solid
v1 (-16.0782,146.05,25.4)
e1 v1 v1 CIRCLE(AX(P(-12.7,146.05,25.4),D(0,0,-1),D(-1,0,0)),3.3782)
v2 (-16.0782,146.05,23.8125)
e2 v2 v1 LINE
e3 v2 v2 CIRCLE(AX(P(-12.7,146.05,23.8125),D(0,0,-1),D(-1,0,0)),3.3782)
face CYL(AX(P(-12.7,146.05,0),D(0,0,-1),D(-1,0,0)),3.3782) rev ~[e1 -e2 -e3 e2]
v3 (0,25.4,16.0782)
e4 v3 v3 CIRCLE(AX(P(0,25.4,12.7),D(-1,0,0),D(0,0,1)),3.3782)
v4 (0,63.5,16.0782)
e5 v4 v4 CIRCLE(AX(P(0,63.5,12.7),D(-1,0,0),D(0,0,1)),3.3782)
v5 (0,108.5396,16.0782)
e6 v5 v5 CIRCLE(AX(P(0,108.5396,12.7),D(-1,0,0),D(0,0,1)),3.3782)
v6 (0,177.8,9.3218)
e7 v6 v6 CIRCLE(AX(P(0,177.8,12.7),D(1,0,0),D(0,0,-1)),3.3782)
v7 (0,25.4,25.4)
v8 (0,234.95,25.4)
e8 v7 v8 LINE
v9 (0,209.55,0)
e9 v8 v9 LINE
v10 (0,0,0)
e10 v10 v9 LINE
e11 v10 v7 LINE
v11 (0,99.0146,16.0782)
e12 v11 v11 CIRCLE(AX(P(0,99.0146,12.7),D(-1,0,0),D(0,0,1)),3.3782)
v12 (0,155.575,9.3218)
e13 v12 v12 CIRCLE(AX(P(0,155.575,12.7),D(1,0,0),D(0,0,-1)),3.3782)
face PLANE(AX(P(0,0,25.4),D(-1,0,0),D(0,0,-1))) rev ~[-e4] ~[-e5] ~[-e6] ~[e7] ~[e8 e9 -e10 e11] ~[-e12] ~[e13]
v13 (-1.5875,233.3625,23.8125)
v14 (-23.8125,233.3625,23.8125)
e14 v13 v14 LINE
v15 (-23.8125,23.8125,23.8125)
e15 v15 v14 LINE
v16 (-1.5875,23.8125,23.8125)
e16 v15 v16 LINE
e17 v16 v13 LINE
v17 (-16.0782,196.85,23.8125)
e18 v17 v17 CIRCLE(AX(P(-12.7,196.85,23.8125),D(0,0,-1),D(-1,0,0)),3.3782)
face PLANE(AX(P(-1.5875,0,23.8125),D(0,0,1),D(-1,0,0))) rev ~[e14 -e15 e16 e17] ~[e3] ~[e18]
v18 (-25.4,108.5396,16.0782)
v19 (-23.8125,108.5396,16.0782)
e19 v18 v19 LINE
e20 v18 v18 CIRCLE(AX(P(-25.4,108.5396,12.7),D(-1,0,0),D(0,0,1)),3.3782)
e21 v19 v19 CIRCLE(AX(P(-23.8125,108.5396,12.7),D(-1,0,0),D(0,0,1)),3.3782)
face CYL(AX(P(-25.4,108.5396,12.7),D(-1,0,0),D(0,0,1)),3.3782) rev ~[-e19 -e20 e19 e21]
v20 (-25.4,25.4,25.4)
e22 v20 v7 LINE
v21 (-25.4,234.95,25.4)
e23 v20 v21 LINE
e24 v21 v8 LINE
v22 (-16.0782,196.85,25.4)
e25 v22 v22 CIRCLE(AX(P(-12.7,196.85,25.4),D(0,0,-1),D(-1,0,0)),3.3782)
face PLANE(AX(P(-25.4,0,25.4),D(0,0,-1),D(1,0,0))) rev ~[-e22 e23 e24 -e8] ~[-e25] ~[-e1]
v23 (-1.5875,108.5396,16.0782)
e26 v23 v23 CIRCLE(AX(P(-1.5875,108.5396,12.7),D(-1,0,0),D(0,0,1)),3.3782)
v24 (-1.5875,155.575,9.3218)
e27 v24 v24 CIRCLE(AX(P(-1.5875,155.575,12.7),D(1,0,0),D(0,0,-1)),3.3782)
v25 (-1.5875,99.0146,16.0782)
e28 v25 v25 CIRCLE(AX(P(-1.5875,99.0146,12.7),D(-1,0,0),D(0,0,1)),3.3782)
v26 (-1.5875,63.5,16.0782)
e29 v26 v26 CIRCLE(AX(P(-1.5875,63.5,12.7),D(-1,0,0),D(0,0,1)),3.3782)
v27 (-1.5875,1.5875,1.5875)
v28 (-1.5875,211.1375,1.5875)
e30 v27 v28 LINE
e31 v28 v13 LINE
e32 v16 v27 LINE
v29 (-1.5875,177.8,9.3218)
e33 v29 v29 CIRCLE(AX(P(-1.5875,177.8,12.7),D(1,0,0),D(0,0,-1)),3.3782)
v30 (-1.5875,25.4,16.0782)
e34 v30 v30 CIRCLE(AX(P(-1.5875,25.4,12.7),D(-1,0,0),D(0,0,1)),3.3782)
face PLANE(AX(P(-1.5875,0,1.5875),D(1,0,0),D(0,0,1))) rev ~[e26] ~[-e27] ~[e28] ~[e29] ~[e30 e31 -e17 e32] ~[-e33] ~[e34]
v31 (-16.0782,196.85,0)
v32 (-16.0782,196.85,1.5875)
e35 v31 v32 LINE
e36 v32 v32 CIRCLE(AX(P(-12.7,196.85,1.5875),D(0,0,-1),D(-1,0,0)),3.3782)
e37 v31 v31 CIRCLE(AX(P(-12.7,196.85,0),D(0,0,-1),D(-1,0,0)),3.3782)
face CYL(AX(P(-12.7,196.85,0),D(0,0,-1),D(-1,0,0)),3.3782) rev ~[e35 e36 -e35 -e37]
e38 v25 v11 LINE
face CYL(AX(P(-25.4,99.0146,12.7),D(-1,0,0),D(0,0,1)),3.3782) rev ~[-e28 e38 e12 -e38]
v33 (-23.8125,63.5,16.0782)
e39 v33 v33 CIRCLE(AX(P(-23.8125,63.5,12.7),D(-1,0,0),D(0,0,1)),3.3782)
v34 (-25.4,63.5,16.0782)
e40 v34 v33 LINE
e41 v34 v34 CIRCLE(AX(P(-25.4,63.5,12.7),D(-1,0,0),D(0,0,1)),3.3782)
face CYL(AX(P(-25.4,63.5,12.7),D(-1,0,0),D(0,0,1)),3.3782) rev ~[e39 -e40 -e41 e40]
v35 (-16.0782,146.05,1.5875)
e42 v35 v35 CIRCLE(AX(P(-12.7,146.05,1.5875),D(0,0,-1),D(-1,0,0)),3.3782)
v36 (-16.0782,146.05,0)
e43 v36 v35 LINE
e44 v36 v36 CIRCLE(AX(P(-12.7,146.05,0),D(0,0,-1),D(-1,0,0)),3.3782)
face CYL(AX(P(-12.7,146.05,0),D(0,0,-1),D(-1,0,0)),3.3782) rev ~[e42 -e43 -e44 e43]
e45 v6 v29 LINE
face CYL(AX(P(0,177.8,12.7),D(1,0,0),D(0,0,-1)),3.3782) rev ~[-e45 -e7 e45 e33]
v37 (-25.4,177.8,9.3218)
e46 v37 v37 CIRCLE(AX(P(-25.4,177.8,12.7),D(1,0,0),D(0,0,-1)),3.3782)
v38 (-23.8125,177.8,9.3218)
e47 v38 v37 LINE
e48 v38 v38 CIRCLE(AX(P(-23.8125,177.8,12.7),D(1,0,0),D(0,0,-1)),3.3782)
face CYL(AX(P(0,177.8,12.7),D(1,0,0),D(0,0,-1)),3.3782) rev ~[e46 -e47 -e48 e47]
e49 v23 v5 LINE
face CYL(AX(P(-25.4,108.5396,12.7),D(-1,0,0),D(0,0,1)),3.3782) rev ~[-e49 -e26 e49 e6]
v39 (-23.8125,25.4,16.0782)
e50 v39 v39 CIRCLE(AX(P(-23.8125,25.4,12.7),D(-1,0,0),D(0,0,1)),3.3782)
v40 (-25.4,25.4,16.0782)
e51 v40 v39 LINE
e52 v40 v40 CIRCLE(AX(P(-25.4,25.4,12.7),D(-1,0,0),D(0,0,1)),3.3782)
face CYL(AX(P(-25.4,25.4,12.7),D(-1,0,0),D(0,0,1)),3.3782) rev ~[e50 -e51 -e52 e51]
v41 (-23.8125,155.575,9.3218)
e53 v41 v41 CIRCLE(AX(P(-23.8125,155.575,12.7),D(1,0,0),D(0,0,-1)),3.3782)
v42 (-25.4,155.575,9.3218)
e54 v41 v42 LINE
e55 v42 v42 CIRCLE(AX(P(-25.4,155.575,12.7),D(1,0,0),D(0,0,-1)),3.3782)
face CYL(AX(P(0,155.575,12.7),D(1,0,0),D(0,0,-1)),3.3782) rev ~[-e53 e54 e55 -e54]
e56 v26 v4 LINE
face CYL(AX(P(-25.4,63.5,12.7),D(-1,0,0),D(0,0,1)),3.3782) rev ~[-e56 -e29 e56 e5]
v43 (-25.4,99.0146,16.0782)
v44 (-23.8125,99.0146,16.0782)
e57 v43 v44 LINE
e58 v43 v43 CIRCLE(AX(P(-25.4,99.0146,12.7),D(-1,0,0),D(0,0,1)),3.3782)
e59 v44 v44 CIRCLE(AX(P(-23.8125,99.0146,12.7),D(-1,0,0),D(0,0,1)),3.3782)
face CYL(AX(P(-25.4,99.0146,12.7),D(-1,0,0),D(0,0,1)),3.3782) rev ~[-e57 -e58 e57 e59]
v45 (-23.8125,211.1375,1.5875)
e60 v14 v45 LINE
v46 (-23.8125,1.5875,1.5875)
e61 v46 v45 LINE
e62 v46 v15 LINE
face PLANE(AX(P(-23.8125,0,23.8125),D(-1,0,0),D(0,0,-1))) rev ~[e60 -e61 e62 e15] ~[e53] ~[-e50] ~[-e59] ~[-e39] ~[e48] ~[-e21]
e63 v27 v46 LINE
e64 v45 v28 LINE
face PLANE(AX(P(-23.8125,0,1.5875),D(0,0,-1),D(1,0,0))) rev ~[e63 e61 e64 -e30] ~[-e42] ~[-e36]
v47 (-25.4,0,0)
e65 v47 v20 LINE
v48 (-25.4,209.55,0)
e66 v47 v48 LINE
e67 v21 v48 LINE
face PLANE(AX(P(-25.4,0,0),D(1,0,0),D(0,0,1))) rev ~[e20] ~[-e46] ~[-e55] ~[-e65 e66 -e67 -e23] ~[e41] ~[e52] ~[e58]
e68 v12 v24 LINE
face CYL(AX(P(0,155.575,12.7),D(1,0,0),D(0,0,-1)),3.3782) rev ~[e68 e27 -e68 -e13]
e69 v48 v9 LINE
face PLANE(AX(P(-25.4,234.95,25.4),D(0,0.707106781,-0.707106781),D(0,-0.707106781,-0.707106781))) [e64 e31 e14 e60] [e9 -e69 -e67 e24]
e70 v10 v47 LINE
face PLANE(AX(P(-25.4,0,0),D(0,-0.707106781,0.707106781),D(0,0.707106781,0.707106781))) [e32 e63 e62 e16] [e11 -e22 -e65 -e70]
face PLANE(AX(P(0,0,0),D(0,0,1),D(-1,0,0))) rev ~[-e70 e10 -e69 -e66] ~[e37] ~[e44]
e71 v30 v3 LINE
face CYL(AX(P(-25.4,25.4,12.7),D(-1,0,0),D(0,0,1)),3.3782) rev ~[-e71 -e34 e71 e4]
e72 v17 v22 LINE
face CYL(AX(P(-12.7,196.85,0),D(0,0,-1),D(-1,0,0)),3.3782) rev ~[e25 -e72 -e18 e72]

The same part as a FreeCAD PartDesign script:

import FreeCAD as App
import Part
import Sketcher
Q = App.Units.Quantity

doc = App.newDocument("Part")
body = doc.addObject("PartDesign::Body", "Body")

sketch1 = body.newObject("Sketcher::SketchObject", "Sketch")
sketch1.AttachmentSupport = (doc.getObject("XZ_Plane"), [""])
sketch1.MapMode = "FlatFace"
sketch1.addGeometry([
    Part.LineSegment(App.Vector(0, 25, 0), App.Vector(0, 0, 0)),
    Part.LineSegment(App.Vector(0, 0, 0), App.Vector(-25, 0, 0)),
    Part.LineSegment(App.Vector(-25, 0, 0), App.Vector(-25, 25, 0)),
    Part.LineSegment(App.Vector(-25, 25, 0), App.Vector(0, 25, 0)),
    Part.LineSegment(App.Vector(-2, 2, 0), App.Vector(-2, 24, 0)),
    Part.LineSegment(App.Vector(-2, 24, 0), App.Vector(-24, 24, 0)),
    Part.LineSegment(App.Vector(-24, 24, 0), App.Vector(-24, 2, 0)),
    Part.LineSegment(App.Vector(-24, 2, 0), App.Vector(-2, 2, 0)),
], False)
sketch1.addConstraint([
    Sketcher.Constraint("Coincident", 0, 2, 1, 1),
    Sketcher.Constraint("Coincident", 1, 2, 2, 1),
    Sketcher.Constraint("Coincident", 2, 2, 3, 1),
    Sketcher.Constraint("Coincident", 3, 2, 0, 1),
    Sketcher.Constraint("Coincident", 4, 2, 5, 1),
    Sketcher.Constraint("Coincident", 5, 2, 6, 1),
    Sketcher.Constraint("Coincident", 6, 2, 7, 1),
    Sketcher.Constraint("Coincident", 7, 2, 4, 1),
    Sketcher.Constraint("Vertical", 0),
    Sketcher.Constraint("Horizontal", 1),
    Sketcher.Constraint("Vertical", 2),
    Sketcher.Constraint("Horizontal", 3),
    Sketcher.Constraint("Vertical", 4),
    Sketcher.Constraint("Horizontal", 5),
    Sketcher.Constraint("Vertical", 6),
    Sketcher.Constraint("Horizontal", 7),
    Sketcher.Constraint("Coincident", 0, 2, -1, 1),
    Sketcher.Constraint("Equal", 3, 0),
    Sketcher.Constraint("Equal", 7, 4),
    Sketcher.Constraint("DistanceX", 1, 2, 1, 1, Q("1 in")),
    Sketcher.Constraint("DistanceX", 4, 2, -1, 1, Q("0.0625 in")),
    Sketcher.Constraint("DistanceY", -1, 1, 6, 2, Q("0.0625 in")),
    Sketcher.Constraint("DistanceY", 4, 2, 3, 2, Q("0.0625 in")),
])
pad1 = body.newObject("PartDesign::Pad", "Pad")
pad1.Profile = sketch1
pad1.Length = Q("10 in")
pad1.Reversed = True

sketch2 = body.newObject("Sketcher::SketchObject", "Sketch001")
sketch2.AttachmentSupport = (doc.getObject("YZ_Plane"), [""])
sketch2.MapMode = "FlatFace"
sketch2.AttachmentOffset = App.Placement(App.Vector(0, 0, -1 * 25.4), App.Rotation())
sketch2.addGeometry([
    Part.LineSegment(App.Vector(254, 25, 0), App.Vector(254, 0, 0)),
    Part.LineSegment(App.Vector(254, 0, 0), App.Vector(210, 0, 0)),
    Part.LineSegment(App.Vector(210, 0, 0), App.Vector(235, 25, 0)),
    Part.LineSegment(App.Vector(235, 25, 0), App.Vector(254, 25, 0)),
], False)
sketch2.addConstraint([
    Sketcher.Constraint("Coincident", 0, 2, 1, 1),
    Sketcher.Constraint("Coincident", 1, 2, 2, 1),
    Sketcher.Constraint("Coincident", 2, 2, 3, 1),
    Sketcher.Constraint("Coincident", 3, 2, 0, 1),
    Sketcher.Constraint("Vertical", 0),
    Sketcher.Constraint("Horizontal", 1),
    Sketcher.Constraint("Horizontal", 3),
    Sketcher.Constraint("PointOnObject", 0, 2, -1),
    Sketcher.Constraint("DistanceY", 0, 2, 0, 1, Q("1 in")),
    Sketcher.Constraint("DistanceX", 1, 2, 2, 2, Q("1 in")),
    Sketcher.Constraint("DistanceX", 3, 1, 3, 2, Q("0.75 in")),
    Sketcher.Constraint("DistanceX", -1, 1, 0, 2, Q("10 in")),
])
pocket1 = body.newObject("PartDesign::Pocket", "Pocket")
pocket1.Profile = sketch2
pocket1.Length = Q("1 in")
pocket1.Reversed = True

sketch3 = body.newObject("Sketcher::SketchObject", "Sketch002")
sketch3.AttachmentSupport = (doc.getObject("YZ_Plane"), [""])
sketch3.MapMode = "FlatFace"
sketch3.AttachmentOffset = App.Placement(App.Vector(0, 0, -1 * 25.4), App.Rotation())
sketch3.addGeometry([
    Part.LineSegment(App.Vector(25, 25, 0), App.Vector(0, 0, 0)),
    Part.LineSegment(App.Vector(0, 0, 0), App.Vector(0, 25, 0)),
    Part.LineSegment(App.Vector(0, 25, 0), App.Vector(25, 25, 0)),
], False)
sketch3.addConstraint([
    Sketcher.Constraint("Coincident", 0, 2, 1, 1),
    Sketcher.Constraint("Coincident", 1, 2, 2, 1),
    Sketcher.Constraint("Coincident", 2, 2, 0, 1),
    Sketcher.Constraint("Vertical", 1),
    Sketcher.Constraint("Horizontal", 2),
    Sketcher.Constraint("Coincident", 0, 2, -1, 1),
    Sketcher.Constraint("Equal", 2, 1),
    Sketcher.Constraint("DistanceX", 2, 1, 2, 2, Q("1 in")),
])
pocket2 = body.newObject("PartDesign::Pocket", "Pocket001")
pocket2.Profile = sketch3
pocket2.Length = Q("1 in")
pocket2.Reversed = True

sketch4 = body.newObject("Sketcher::SketchObject", "Sketch003")
sketch4.AttachmentSupport = (doc.getObject("YZ_Plane"), [""])
sketch4.MapMode = "FlatFace"
sketch4.AttachmentOffset = App.Placement(App.Vector(0, 0, -1 * 25.4), App.Rotation())
sketch4.addGeometry([
    Part.Circle(App.Vector(63.5, 12.7, 0), App.Vector(0, 0, 1), 3.4),
    Part.Circle(App.Vector(25.4, 12.7, 0), App.Vector(0, 0, 1), 3.4),
], False)
sketch4.addConstraint([
    Sketcher.Constraint("Equal", 0, 1),
    Sketcher.Constraint("Horizontal", 0, 3, 1, 3),
    Sketcher.Constraint("Diameter", 0, Q("0.266 in")),
    Sketcher.Constraint("DistanceX", -1, 1, 1, 3, Q("1 in")),
    Sketcher.Constraint("DistanceX", -1, 1, 0, 3, Q("2.5 in")),
    Sketcher.Constraint("DistanceY", -1, 1, 0, 3, Q("0.5 in")),
])
pocket3 = body.newObject("PartDesign::Pocket", "Pocket002")
pocket3.Profile = sketch4
pocket3.Length = Q("1 in")
pocket3.Reversed = True

sketch5 = body.newObject("Sketcher::SketchObject", "Sketch004")
sketch5.AttachmentSupport = (doc.getObject("XY_Plane"), [""])
sketch5.MapMode = "FlatFace"
sketch5.addGeometry([
    Part.Circle(App.Vector(-12.7, 196.8, 0), App.Vector(0, 0, 1), 3.4),
    Part.Circle(App.Vector(-12.7, 146.1, 0), App.Vector(0, 0, 1), 3.4),
], False)
sketch5.addConstraint([
    Sketcher.Constraint("Equal", 0, 1),
    Sketcher.Constraint("Vertical", 0, 3, 1, 3),
    Sketcher.Constraint("Diameter", 0, Q("0.266 in")),
    Sketcher.Constraint("DistanceY", 1, 3, 0, 3, Q("2 in")),
    Sketcher.Constraint("DistanceX", 0, 3, -1, 1, Q("0.5 in")),
    Sketcher.Constraint("DistanceY", -1, 1, 0, 3, Q("7.75 in")),
])
pocket4 = body.newObject("PartDesign::Pocket", "Pocket003")
pocket4.Profile = sketch5
pocket4.Length = Q("1 in")
pocket4.Reversed = True

sketch6 = body.newObject("Sketcher::SketchObject", "Sketch005")
sketch6.AttachmentSupport = (doc.getObject("YZ_Plane"), [""])
sketch6.MapMode = "FlatFace"
sketch6.addGeometry([
    Part.Circle(App.Vector(177.8, 12.7, 0), App.Vector(0, 0, 1), 3.4),
    Part.Circle(App.Vector(155.6, 12.7, 0), App.Vector(0, 0, 1), 3.4),
], False)
sketch6.addConstraint([
    Sketcher.Constraint("Equal", 0, 1),
    Sketcher.Constraint("Horizontal", 0, 3, 1, 3),
    Sketcher.Constraint("Diameter", 0, Q("0.266 in")),
    Sketcher.Constraint("DistanceX", -1, 1, 0, 3, Q("7 in")),
    Sketcher.Constraint("DistanceY", -1, 1, 0, 3, Q("0.5 in")),
    Sketcher.Constraint("DistanceX", -1, 1, 1, 3, Q("6.125 in")),
])
pocket5 = body.newObject("PartDesign::Pocket", "Pocket004")
pocket5.Profile = sketch6
pocket5.Length = Q("1 in")

sketch7 = body.newObject("Sketcher::SketchObject", "Sketch006")
sketch7.AttachmentSupport = (doc.getObject("YZ_Plane"), [""])
sketch7.MapMode = "FlatFace"
sketch7.AttachmentOffset = App.Placement(App.Vector(0, 0, -1 * 25.4), App.Rotation())
sketch7.addGeometry([
    Part.Circle(App.Vector(108.5, 12.7, 0), App.Vector(0, 0, 1), 3.4),
    Part.Circle(App.Vector(99, 12.7, 0), App.Vector(0, 0, 1), 3.4),
], False)
sketch7.addConstraint([
    Sketcher.Constraint("Equal", 0, 1),
    Sketcher.Constraint("Horizontal", 0, 3, 1, 3),
    Sketcher.Constraint("Diameter", 0, Q("0.266 in")),
    Sketcher.Constraint("DistanceY", -1, 1, 0, 3, Q("0.5 in")),
    Sketcher.Constraint("DistanceX", 1, 3, 0, 3, Q("0.375 in")),
    Sketcher.Constraint("DistanceX", -1, 1, 0, 3, Q("108.5396 mm")),
])
pocket6 = body.newObject("PartDesign::Pocket", "Pocket005")
pocket6.Profile = sketch7
pocket6.Length = Q("1 in")
pocket6.Reversed = True

doc.recompute()
